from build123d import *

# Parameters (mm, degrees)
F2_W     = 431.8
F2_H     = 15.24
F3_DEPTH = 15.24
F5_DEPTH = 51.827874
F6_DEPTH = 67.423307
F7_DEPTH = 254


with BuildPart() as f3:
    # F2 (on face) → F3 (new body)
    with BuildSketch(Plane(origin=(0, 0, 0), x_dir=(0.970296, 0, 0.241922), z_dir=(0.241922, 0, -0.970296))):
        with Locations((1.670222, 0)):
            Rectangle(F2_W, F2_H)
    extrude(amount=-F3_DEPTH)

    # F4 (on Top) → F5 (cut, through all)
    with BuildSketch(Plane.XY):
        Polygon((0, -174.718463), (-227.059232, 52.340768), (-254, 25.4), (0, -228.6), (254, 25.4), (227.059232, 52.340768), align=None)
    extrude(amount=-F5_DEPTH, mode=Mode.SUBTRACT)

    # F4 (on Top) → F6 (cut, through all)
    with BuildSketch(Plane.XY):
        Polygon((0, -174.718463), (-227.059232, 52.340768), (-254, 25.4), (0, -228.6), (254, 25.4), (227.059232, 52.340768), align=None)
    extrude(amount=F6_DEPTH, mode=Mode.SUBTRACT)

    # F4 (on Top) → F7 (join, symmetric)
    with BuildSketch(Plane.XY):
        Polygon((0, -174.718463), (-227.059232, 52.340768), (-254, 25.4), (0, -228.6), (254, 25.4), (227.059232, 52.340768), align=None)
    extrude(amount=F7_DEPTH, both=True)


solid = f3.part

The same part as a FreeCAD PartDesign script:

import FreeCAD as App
import Part
import Sketcher
Q = App.Units.Quantity


def add_polygon(sketch, points):
    """Adds a closed chain of lines whose ends are joined by coincident constraints."""
    first, n = sketch.GeometryCount, len(points)
    for a, b in zip(points, points[1:] + points[:1]):
        sketch.addGeometry(Part.LineSegment(App.Vector(*a, 0), App.Vector(*b, 0)), False)
    for i in range(n):
        sketch.addConstraint(Sketcher.Constraint("Coincident", first + i, 2, first + (i + 1) % n, 1))

doc = App.newDocument("Part")
params = doc.addObject("Spreadsheet::Sheet", "Params")
for row, (alias, value) in enumerate([
    ("sketch1_width", "17 in"),
    ("sketch1_height", "0.6 in"),
    ("pad1_length", "0.6 in"),
    ("sketch2_length", "1.5 in"),
    ("sketch3_length", "1.5 in"),
    ("sketch4_length", "1.5 in"),
    ("pad2_length", "20 in"),
], start=1):
    params.set(f"A{row}", alias)
    params.set(f"B{row}", "=" + value)
    params.setAlias(f"B{row}", alias)

body = doc.addObject("PartDesign::Body", "Body")

# Sketch on an angled plane
sketch1 = doc.addObject("Sketcher::SketchObject", "Sketch")
body.addObject(sketch1)
sketch1.Placement = App.Placement(App.Vector(0, 0, 0), App.Rotation(App.Vector(0.970295718, 0, 0.24192193), App.Vector(0, -1.000000001, 0), App.Vector(0.24192193, 0, -0.970295718), "ZXY"))
add_polygon(sketch1, [(-214.229778, 7.62), (-214.229778, -7.62), (217.570222, -7.62), (217.570222, 7.62)])  # lines 0-3
sketch1.addConstraint(Sketcher.Constraint("Vertical", 0))
sketch1.addConstraint(Sketcher.Constraint("Horizontal", 1))
sketch1.addConstraint(Sketcher.Constraint("Vertical", 2))
sketch1.addConstraint(Sketcher.Constraint("Horizontal", 3))
sketch1.addConstraint(Sketcher.Constraint("DistanceX", 1, 1, 1, 2, Q("17 in")))
sketch1.addConstraint(Sketcher.Constraint("DistanceY", 0, 2, 0, 1, Q("0.6 in")))
sketch1.addConstraint(Sketcher.Constraint("DistanceY", 0, 2, -1, 1, Q("0.3 in")))
sketch1.addConstraint(Sketcher.Constraint("DistanceX", 0, 2, -1, 1, Q("214.229778 mm")))
sketch1.setExpression("Constraints[8]", "Params.sketch1_width")
sketch1.setExpression("Constraints[9]", "Params.sketch1_height")
pad1 = doc.addObject("PartDesign::Pad", "Pad")
body.addObject(pad1)
pad1.Profile = sketch1
pad1.setExpression("Length", "Params.pad1_length")
pad1.Reversed = True

# Sketch on XY plane
sketch2 = doc.addObject("Sketcher::SketchObject", "Sketch001")
body.addObject(sketch2)
sketch2.AttachmentSupport = (doc.XY_Plane, [""])
sketch2.MapMode = "FlatFace"
add_polygon(sketch2, [(0, -174.718463), (-227.059232, 52.340768), (-254, 25.4), (0, -228.6), (254, 25.4), (227.059232, 52.340768)])  # lines 0-5
sketch2.addConstraint(Sketcher.Constraint("Symmetric", 1, 2, 3, 2, -2))
sketch2.addConstraint(Sketcher.Constraint("Symmetric", 0, 2, 4, 2, -2))
sketch2.addConstraint(Sketcher.Constraint("PointOnObject", 2, 2, -2))
sketch2.addConstraint(Sketcher.Constraint("PointOnObject", 5, 2, -2))
sketch2.addConstraint(Sketcher.Constraint("Perpendicular", 0, 1))
sketch2.addConstraint(Sketcher.Constraint("Perpendicular", 1, 2))
sketch2.addConstraint(Sketcher.Constraint("Perpendicular", 2, 3))
sketch2.addConstraint(Sketcher.Constraint("DistanceX", 1, 2, -1, 1, Q("10 in")))
sketch2.addConstraint(Sketcher.Constraint("DistanceY", -1, 1, 1, 2, Q("1 in")))
sketch2.addConstraint(Sketcher.Constraint("Distance", 1, Q("1.5 in")))
sketch2.setExpression("Constraints[15]", "Params.sketch2_length")
pocket1 = doc.addObject("PartDesign::Pocket", "Pocket")
body.addObject(pocket1)
pocket1.Profile = sketch2
pocket1.Type = "ThroughAll"

# Sketch on XY plane
sketch3 = doc.addObject("Sketcher::SketchObject", "Sketch002")
body.addObject(sketch3)
sketch3.AttachmentSupport = (doc.XY_Plane, [""])
sketch3.MapMode = "FlatFace"
add_polygon(sketch3, [(0, -174.718463), (-227.059232, 52.340768), (-254, 25.4), (0, -228.6), (254, 25.4), (227.059232, 52.340768)])  # lines 0-5
sketch3.addConstraint(Sketcher.Constraint("Symmetric", 1, 2, 3, 2, -2))
sketch3.addConstraint(Sketcher.Constraint("Symmetric", 0, 2, 4, 2, -2))
sketch3.addConstraint(Sketcher.Constraint("PointOnObject", 2, 2, -2))
sketch3.addConstraint(Sketcher.Constraint("PointOnObject", 5, 2, -2))
sketch3.addConstraint(Sketcher.Constraint("Perpendicular", 0, 1))
sketch3.addConstraint(Sketcher.Constraint("Perpendicular", 1, 2))
sketch3.addConstraint(Sketcher.Constraint("Perpendicular", 2, 3))
sketch3.addConstraint(Sketcher.Constraint("DistanceX", 1, 2, -1, 1, Q("10 in")))
sketch3.addConstraint(Sketcher.Constraint("DistanceY", -1, 1, 1, 2, Q("1 in")))
sketch3.addConstraint(Sketcher.Constraint("Distance", 1, Q("1.5 in")))
sketch3.setExpression("Constraints[15]", "Params.sketch3_length")
pocket2 = doc.addObject("PartDesign::Pocket", "Pocket001")
body.addObject(pocket2)
pocket2.Profile = sketch3
pocket2.Type = "ThroughAll"
pocket2.Reversed = True

# Sketch on XY plane
sketch4 = doc.addObject("Sketcher::SketchObject", "Sketch003")
body.addObject(sketch4)
sketch4.AttachmentSupport = (doc.XY_Plane, [""])
sketch4.MapMode = "FlatFace"
add_polygon(sketch4, [(0, -174.718463), (-227.059232, 52.340768), (-254, 25.4), (0, -228.6), (254, 25.4), (227.059232, 52.340768)])  # lines 0-5
sketch4.addConstraint(Sketcher.Constraint("Symmetric", 1, 2, 3, 2, -2))
sketch4.addConstraint(Sketcher.Constraint("Symmetric", 0, 2, 4, 2, -2))
sketch4.addConstraint(Sketcher.Constraint("PointOnObject", 2, 2, -2))
sketch4.addConstraint(Sketcher.Constraint("PointOnObject", 5, 2, -2))
sketch4.addConstraint(Sketcher.Constraint("Perpendicular", 0, 1))
sketch4.addConstraint(Sketcher.Constraint("Perpendicular", 1, 2))
sketch4.addConstraint(Sketcher.Constraint("Perpendicular", 2, 3))
sketch4.addConstraint(Sketcher.Constraint("DistanceX", 1, 2, -1, 1, Q("10 in")))
sketch4.addConstraint(Sketcher.Constraint("DistanceY", -1, 1, 1, 2, Q("1 in")))
sketch4.addConstraint(Sketcher.Constraint("Distance", 1, Q("1.5 in")))
sketch4.setExpression("Constraints[15]", "Params.sketch4_length")
pad2 = doc.addObject("PartDesign::Pad", "Pad001")
body.addObject(pad2)
pad2.Profile = sketch4
pad2.setExpression("Length", "Params.pad2_length")
pad2.Midplane = True

doc.recompute()
